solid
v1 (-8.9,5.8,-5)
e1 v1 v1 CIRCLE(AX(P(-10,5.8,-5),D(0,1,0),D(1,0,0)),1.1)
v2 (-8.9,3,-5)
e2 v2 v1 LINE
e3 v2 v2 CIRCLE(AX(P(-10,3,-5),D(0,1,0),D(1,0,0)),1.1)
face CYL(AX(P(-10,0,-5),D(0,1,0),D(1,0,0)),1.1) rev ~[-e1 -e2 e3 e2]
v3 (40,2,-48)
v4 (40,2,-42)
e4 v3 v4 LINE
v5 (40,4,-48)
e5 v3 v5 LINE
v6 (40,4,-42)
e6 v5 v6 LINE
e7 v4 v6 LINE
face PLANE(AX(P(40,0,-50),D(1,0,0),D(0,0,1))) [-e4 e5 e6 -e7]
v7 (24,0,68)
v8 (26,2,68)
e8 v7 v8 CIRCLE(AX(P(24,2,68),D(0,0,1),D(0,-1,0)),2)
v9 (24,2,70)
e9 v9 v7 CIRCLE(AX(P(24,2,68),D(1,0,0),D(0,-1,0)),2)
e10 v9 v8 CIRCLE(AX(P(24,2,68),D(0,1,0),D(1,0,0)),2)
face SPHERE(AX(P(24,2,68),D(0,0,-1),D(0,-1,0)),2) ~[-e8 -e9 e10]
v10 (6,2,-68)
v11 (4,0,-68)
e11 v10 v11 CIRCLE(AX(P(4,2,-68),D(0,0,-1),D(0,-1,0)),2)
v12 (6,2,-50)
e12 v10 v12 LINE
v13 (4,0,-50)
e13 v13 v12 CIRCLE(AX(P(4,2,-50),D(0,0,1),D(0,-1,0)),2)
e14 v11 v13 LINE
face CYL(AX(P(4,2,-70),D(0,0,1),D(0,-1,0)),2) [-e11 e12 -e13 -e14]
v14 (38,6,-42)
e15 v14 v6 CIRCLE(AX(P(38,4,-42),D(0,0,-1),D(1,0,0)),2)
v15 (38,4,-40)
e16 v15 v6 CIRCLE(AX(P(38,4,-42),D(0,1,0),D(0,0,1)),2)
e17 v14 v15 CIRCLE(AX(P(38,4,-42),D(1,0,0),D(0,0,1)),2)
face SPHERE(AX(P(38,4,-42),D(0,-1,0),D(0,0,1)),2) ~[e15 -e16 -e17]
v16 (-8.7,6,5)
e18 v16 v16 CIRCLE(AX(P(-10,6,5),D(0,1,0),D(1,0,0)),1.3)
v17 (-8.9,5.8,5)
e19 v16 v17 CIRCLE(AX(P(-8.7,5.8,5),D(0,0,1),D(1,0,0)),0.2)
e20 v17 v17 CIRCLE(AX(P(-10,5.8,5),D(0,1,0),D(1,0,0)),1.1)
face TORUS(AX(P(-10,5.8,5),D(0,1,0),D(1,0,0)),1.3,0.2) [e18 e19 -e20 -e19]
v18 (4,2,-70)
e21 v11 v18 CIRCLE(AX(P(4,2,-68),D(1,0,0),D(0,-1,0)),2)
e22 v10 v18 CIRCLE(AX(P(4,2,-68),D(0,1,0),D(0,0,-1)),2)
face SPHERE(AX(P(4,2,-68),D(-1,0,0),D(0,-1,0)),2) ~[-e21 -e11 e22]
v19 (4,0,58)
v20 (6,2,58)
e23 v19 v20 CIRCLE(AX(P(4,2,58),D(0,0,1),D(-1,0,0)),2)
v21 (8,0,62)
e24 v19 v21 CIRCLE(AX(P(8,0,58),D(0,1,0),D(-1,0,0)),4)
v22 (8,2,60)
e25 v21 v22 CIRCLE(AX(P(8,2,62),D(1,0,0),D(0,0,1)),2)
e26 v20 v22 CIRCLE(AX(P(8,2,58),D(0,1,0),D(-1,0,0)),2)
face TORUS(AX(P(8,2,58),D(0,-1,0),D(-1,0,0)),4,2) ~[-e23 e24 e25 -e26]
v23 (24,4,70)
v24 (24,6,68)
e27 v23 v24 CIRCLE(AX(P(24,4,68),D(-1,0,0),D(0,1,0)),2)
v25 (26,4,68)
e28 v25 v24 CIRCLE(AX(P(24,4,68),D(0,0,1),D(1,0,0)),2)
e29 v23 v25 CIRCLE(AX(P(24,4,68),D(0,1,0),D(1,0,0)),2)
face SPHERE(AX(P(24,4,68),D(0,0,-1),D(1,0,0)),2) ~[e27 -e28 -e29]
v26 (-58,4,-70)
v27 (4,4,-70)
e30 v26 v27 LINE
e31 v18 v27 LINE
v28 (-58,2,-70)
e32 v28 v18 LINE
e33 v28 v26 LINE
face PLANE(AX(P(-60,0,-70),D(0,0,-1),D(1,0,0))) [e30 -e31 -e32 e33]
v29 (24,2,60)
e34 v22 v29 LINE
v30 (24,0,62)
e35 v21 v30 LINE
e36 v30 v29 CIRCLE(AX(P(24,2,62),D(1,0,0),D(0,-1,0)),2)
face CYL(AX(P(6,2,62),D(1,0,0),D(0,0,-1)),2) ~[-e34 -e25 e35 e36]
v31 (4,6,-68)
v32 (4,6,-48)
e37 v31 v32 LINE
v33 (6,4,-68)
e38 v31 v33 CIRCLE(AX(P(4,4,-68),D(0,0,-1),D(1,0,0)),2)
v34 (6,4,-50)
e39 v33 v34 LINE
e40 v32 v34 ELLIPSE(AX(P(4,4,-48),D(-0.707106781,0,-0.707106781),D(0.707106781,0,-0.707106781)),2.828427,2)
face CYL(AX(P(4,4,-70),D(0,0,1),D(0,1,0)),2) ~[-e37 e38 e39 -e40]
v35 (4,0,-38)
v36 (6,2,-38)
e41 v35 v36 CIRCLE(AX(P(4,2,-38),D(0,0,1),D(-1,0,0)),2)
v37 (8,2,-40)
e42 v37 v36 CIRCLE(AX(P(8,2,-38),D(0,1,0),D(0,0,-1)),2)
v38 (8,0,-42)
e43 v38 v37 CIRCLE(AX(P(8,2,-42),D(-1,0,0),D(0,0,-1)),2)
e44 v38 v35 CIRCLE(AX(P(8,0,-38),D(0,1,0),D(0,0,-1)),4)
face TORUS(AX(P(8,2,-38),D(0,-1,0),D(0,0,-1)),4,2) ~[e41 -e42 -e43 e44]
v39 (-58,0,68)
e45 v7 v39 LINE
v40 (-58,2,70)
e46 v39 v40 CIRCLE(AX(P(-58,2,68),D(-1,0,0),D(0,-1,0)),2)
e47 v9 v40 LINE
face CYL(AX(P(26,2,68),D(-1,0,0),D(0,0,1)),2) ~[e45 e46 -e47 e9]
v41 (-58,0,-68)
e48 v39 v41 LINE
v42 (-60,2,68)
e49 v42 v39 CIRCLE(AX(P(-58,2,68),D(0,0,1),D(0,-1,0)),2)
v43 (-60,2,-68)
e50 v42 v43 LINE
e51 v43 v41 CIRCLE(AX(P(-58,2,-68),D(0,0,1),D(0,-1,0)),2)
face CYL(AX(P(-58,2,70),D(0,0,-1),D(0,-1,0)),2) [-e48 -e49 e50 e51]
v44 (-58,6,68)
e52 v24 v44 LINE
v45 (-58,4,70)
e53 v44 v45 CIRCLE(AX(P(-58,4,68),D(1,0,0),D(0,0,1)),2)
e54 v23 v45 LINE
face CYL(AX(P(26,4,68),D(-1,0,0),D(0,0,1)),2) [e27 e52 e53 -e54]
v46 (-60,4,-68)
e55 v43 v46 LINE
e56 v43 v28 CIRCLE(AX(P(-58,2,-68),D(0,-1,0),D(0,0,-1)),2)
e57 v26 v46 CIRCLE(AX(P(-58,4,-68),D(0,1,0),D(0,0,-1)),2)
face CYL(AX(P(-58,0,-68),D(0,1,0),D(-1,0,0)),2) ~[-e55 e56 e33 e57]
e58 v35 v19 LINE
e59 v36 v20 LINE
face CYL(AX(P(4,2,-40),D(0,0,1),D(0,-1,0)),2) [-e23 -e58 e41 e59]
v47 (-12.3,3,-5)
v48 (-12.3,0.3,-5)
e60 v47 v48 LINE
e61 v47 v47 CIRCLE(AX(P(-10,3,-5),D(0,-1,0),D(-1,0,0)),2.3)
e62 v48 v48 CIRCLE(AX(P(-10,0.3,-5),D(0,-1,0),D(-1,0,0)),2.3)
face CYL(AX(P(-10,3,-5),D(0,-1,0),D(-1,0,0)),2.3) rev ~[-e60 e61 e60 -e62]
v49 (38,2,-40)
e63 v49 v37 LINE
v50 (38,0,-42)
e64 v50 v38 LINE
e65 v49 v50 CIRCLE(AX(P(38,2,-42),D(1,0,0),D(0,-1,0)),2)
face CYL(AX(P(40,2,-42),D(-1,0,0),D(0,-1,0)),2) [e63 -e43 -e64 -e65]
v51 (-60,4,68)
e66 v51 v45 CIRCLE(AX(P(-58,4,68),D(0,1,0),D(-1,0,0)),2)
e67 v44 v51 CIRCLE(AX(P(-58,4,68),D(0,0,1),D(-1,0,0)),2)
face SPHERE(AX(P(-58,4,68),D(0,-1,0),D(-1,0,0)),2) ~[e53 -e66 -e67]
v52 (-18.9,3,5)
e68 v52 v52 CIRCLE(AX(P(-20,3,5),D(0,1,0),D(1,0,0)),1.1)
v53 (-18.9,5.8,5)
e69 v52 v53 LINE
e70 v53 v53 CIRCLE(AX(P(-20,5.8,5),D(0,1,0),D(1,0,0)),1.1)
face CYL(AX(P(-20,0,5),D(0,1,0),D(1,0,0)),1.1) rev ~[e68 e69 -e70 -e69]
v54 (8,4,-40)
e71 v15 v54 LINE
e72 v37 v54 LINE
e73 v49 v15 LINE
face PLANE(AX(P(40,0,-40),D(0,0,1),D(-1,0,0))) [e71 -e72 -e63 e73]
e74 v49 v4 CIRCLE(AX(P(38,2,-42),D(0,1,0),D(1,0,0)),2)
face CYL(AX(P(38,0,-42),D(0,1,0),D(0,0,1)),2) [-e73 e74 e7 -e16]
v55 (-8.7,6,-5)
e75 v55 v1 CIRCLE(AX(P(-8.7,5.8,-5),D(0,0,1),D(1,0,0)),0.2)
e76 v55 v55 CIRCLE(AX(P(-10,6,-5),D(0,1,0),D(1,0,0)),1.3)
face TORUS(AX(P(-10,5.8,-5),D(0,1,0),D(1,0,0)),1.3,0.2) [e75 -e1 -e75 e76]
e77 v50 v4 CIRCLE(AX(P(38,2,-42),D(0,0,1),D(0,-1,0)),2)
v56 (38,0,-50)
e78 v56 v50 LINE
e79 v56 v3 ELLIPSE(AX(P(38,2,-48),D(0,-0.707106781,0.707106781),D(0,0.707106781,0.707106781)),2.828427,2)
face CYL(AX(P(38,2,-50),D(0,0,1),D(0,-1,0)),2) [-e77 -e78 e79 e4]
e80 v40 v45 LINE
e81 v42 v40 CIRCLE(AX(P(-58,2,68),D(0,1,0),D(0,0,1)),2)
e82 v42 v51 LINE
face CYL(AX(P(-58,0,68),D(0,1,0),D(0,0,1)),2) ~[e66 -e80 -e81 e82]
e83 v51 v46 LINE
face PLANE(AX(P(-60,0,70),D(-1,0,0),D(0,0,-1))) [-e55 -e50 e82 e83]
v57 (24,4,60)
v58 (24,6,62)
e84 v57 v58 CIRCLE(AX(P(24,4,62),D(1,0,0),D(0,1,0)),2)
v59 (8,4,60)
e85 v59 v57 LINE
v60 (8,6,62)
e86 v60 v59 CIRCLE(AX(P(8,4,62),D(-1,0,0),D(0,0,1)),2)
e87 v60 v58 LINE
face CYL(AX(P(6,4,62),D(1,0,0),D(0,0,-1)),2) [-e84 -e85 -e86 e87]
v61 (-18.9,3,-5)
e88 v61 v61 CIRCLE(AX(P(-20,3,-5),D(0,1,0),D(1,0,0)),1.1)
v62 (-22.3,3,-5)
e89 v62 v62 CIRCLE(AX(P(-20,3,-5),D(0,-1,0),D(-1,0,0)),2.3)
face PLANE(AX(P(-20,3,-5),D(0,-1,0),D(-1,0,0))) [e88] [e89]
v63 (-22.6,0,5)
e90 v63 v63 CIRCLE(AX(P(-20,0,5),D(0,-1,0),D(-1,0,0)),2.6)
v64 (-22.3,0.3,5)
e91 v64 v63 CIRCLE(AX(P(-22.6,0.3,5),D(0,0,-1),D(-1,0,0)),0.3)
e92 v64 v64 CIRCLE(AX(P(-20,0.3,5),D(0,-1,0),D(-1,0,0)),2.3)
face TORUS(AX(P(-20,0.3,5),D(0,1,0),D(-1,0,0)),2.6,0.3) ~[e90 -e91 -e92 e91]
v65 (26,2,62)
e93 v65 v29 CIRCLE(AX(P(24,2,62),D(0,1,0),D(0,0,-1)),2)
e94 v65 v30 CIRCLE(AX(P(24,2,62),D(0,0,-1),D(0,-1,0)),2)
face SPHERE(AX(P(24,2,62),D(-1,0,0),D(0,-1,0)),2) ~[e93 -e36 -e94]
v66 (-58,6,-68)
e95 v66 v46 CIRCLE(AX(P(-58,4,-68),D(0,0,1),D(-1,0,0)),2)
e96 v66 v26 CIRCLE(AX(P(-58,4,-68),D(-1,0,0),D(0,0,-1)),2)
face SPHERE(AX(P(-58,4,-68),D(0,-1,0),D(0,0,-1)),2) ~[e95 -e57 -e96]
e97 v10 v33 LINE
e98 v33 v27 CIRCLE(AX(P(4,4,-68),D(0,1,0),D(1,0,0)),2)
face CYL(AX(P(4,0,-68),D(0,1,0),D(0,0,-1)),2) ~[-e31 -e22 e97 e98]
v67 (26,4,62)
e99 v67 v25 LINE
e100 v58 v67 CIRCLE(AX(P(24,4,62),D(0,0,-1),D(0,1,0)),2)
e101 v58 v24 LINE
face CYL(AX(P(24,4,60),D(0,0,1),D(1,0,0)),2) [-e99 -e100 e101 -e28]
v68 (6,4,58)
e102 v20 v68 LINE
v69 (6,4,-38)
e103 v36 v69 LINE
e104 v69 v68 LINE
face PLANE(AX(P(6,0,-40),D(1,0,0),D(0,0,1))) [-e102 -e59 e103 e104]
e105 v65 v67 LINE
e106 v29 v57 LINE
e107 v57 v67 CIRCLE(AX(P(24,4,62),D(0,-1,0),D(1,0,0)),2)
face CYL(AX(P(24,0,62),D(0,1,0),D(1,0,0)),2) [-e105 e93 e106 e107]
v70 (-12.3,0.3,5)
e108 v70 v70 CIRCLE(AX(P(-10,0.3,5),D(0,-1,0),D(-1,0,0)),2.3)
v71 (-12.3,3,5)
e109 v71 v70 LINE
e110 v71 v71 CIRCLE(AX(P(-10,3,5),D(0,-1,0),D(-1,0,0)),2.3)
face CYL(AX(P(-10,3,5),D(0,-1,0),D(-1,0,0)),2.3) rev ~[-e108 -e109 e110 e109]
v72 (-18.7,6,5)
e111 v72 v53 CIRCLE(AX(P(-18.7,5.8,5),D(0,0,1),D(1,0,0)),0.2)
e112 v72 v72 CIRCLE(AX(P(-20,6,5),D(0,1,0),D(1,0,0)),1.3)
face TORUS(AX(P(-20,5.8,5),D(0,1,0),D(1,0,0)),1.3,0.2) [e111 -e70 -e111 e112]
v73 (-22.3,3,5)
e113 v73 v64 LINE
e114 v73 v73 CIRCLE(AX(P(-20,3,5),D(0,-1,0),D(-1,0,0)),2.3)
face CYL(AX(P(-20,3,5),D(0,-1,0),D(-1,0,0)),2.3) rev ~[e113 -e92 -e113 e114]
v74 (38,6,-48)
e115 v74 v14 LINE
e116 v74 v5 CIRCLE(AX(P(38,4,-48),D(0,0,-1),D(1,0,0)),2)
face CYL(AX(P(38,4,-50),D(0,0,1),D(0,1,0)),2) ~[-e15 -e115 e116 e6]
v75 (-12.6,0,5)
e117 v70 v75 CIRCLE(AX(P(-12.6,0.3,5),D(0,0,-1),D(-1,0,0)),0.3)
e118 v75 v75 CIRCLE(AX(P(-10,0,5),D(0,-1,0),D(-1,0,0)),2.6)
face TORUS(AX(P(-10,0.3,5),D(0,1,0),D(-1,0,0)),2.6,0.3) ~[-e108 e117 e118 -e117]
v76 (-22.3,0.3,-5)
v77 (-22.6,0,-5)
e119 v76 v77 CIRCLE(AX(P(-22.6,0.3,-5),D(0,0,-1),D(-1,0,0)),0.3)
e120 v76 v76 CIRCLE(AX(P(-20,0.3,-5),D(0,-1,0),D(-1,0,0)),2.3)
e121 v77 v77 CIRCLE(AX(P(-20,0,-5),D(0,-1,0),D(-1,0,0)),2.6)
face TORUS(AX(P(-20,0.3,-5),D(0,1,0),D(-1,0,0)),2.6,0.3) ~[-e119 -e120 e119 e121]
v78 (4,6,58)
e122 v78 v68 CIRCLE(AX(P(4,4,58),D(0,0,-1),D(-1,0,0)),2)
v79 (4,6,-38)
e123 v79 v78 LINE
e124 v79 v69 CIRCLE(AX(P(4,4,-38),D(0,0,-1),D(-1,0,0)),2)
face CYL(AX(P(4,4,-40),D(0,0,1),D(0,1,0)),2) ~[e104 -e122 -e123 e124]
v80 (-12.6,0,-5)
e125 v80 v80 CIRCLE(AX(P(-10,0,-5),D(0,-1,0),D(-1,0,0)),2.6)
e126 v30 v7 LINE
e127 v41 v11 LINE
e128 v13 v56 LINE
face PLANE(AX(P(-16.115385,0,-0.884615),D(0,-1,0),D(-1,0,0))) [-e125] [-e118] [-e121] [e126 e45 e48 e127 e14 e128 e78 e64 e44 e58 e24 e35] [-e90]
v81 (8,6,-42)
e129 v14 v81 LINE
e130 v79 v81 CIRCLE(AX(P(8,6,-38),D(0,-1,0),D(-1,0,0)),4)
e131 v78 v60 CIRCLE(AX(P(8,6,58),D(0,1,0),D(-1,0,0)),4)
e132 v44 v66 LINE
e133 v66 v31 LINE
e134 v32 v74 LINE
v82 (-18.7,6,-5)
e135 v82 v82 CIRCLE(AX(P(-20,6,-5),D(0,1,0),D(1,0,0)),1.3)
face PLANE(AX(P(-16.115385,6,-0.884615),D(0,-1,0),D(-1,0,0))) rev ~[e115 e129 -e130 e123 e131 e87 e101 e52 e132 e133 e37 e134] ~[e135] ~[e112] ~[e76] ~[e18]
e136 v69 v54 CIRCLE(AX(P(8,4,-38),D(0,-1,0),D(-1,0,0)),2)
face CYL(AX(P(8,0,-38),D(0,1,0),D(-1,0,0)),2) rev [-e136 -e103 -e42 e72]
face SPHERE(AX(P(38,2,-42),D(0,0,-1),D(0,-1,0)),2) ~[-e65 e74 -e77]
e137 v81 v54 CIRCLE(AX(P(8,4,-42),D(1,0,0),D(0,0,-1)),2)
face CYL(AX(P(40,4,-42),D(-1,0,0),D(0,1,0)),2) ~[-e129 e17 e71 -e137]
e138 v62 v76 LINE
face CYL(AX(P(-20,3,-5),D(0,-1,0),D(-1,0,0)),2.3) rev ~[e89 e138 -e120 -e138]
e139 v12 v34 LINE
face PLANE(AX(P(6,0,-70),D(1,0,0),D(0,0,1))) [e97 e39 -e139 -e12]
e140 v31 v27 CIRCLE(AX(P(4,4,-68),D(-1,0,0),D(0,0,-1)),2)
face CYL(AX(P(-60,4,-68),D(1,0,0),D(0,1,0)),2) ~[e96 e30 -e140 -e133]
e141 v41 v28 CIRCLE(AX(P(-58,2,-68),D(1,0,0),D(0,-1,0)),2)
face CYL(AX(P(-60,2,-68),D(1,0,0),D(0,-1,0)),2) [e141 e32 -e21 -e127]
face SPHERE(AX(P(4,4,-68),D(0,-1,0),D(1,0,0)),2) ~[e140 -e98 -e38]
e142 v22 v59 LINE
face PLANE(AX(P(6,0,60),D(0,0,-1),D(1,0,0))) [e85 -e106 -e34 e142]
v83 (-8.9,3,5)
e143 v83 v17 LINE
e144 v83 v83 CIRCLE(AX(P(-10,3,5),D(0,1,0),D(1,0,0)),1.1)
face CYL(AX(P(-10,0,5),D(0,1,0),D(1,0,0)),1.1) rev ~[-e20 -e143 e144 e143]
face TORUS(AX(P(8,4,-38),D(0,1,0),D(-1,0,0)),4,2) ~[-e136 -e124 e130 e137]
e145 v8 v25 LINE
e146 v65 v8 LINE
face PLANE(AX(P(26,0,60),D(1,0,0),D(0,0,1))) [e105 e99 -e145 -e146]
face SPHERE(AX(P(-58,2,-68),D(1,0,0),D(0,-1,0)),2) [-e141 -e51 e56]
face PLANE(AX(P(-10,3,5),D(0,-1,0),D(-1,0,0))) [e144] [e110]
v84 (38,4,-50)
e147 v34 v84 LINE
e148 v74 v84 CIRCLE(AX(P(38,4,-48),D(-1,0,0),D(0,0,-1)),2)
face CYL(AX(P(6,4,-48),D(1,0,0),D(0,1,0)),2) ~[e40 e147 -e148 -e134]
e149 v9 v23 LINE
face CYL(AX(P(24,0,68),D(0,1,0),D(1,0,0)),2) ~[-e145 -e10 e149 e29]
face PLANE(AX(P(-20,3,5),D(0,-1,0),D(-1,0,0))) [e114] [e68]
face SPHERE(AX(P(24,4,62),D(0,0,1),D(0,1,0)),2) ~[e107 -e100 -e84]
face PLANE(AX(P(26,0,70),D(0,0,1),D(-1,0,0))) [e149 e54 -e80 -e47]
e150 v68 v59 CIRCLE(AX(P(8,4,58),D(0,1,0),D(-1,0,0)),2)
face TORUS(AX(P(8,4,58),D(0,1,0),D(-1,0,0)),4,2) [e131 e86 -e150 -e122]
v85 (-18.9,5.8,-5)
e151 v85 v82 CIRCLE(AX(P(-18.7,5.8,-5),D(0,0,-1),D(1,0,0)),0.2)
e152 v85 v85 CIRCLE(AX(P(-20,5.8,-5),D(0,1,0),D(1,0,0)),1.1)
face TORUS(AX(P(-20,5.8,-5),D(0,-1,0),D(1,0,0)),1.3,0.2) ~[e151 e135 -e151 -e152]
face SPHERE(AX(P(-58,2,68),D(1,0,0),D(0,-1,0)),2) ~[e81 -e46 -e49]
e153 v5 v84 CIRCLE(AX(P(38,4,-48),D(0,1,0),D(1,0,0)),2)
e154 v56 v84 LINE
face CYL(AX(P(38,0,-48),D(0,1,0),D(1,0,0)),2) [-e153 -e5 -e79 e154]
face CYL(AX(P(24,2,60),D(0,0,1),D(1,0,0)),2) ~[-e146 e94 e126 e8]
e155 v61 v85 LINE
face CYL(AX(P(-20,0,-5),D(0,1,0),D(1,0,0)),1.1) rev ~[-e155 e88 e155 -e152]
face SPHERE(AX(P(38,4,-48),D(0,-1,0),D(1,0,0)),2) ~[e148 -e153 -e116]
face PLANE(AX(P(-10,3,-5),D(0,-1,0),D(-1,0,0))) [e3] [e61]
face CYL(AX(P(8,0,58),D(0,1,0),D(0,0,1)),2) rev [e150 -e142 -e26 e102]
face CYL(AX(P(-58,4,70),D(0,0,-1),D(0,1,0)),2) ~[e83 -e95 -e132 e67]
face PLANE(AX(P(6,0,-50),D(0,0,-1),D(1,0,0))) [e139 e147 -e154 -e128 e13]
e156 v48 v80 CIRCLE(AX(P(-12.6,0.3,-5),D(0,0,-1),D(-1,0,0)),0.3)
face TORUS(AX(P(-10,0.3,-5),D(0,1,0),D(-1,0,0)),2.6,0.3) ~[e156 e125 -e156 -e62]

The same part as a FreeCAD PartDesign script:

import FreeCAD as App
import Part
import Sketcher

V = App.Vector


def edges_at(feature, points):
    """Names of the edges that pass closest to the given points."""
    edges = feature.Shape.Edges
    near = lambda p: min(range(len(edges)), key=lambda i: edges[i].distToShape(Part.Vertex(*p))[0])
    return sorted({f"Edge{near(p) + 1}" for p in points})


def add_polygon(sketch, points):
    """Adds a closed chain of lines whose ends are joined by coincident constraints."""
    first, n = sketch.GeometryCount, len(points)
    for a, b in zip(points, points[1:] + points[:1]):
        sketch.addGeometry(Part.LineSegment(App.Vector(*a, 0), App.Vector(*b, 0)), False)
    for i in range(n):
        sketch.addConstraint(Sketcher.Constraint("Coincident", first + i, 2, first + (i + 1) % n, 1))

doc = App.newDocument("Part")
body = doc.addObject("PartDesign::Body", "Body")

# Sketch on XZ plane
sketch1 = body.newObject("Sketcher::SketchObject", "Sketch")
sketch1.AttachmentSupport = (doc.getObject("XZ_Plane"), [""])
sketch1.MapMode = "FlatFace"
add_polygon(sketch1, [(26, 70), (26, 60), (6, 60), (6, -40), (40, -40), (40, -50), (6, -50), (6, -70), (-60, -70), (-60, 70)])  # lines 0-9
sketch1.addConstraint([
    Sketcher.Constraint("Vertical", 0),
    Sketcher.Constraint("Horizontal", 1),
    Sketcher.Constraint("Vertical", 2),
    Sketcher.Constraint("Horizontal", 3),
    Sketcher.Constraint("Vertical", 4),
    Sketcher.Constraint("Horizontal", 5),
    Sketcher.Constraint("Vertical", 6),
    Sketcher.Constraint("Horizontal", 7),
    Sketcher.Constraint("Vertical", 8),
    Sketcher.Constraint("Horizontal", 9),
    Sketcher.Constraint("Vertical", 2, 2, 5, 2),
    Sketcher.Constraint("Equal", 0, 4),
    Sketcher.Constraint("Equal", 1, 6),
    Sketcher.Constraint("DistanceX", 1, 2, 1, 1, 20.0),
    Sketcher.Constraint("DistanceX", 3, 1, 3, 2, 34.0),
    Sketcher.Constraint("DistanceX", 7, 2, 7, 1, 66.0),
    Sketcher.Constraint("DistanceY", 0, 2, 0, 1, 10.0),
    Sketcher.Constraint("DistanceY", 2, 2, 2, 1, 100.0),
    Sketcher.Constraint("DistanceX", -1, 1, 0, 2, 26.0),
    Sketcher.Constraint("DistanceY", -1, 1, 0, 2, 60.0),
])
pad1 = body.newObject("PartDesign::Pad", "Pad")
pad1.Profile = sketch1
pad1.Length = 6
pad1.Reversed = True

# Sketch on XZ plane
sketch2 = body.newObject("Sketcher::SketchObject", "Sketch001")
sketch2.AttachmentSupport = (doc.getObject("XZ_Plane"), [""])
sketch2.MapMode = "FlatFace"
sketch2.addGeometry([
    Part.Circle(V(-10, -5, 0), V(0, 0, 1), 1.1),
    Part.Circle(V(-20, -5, 0), V(0, 0, 1), 1.1),
    Part.Circle(V(-20, 5, 0), V(0, 0, 1), 1.1),
    Part.Circle(V(-10, 5, 0), V(0, 0, 1), 1.1),
], False)
sketch2.addConstraint([
    Sketcher.Constraint("Equal", 0, 1),
    Sketcher.Constraint("Equal", 1, 2),
    Sketcher.Constraint("Equal", 2, 3),
    Sketcher.Constraint("Symmetric", 1, 3, 2, 3, -1),
    Sketcher.Constraint("Symmetric", 0, 3, 3, 3, -1),
    Sketcher.Constraint("Horizontal", 0, 3, 1, 3),
    Sketcher.Constraint("Diameter", 0, 2.2),
    Sketcher.Constraint("DistanceX", 0, 3, -1, 1, 10.0),
    Sketcher.Constraint("DistanceY", 0, 3, -1, 1, 5.0),
    Sketcher.Constraint("DistanceX", 1, 3, -1, 1, 20.0),
])
doc.recompute()
hole = body.newObject("PartDesign::Hole", "Hole")
hole.Profile = sketch2
hole.ThreadType = "None"
hole.Diameter = 2.2
hole.DepthType = "ThroughAll"
hole.HoleCutType = "Counterbore"
hole.HoleCutDiameter = 4.6
hole.HoleCutDepth = 3
doc.recompute()

fillet = body.newObject("PartDesign::Fillet", "Fillet")
fillet.Base = (hole, edges_at(hole, [
    (-27, 0, -70),
    (6, 0, -60),
    (40, 0, -45),
    (23, 0, -40),
    (6, 0, 10),
    (16, 0, 60),
    (26, 6, 65),
    (26, 0, 65),
    (-17, 0, 70),
    (-60, 0, 0),
    (16, 6, 60),
    (-60, 3, -70),
    (6, 3, -70),
    (40, 3, -50),
    (40, 3, -40),
    (6, 3, -40),
    (6, 3, 60),
    (26, 3, 60),
    (26, 3, 70),
    (-60, 3, 70),
    (6, 6, 10),
    (23, 6, -40),
    (40, 6, -45),
    (23, 6, -50),
    (6, 6, -60),
    (-27, 6, -70),
    (-60, 6, 0),
    (-17, 6, 70),
]))
fillet.Radius = 2
doc.recompute()

fillet2 = body.newObject("PartDesign::Fillet", "Fillet001")
fillet2.Base = (fillet, edges_at(fillet, [
    (-7.7, 0, 5),
    (-17.7, 0, 5),
    (-17.7, 0, -5),
    (-7.7, 0, -5),
]))
fillet2.Radius = 0.3
doc.recompute()

fillet3 = body.newObject("PartDesign::Fillet", "Fillet002")
fillet3.Base = (fillet2, edges_at(fillet2, [
    (-11.1, 6, 5),
    (-21.1, 6, 5),
    (-21.1, 6, -5),
    (-11.1, 6, -5),
]))
fillet3.Radius = 0.2

doc.recompute()
